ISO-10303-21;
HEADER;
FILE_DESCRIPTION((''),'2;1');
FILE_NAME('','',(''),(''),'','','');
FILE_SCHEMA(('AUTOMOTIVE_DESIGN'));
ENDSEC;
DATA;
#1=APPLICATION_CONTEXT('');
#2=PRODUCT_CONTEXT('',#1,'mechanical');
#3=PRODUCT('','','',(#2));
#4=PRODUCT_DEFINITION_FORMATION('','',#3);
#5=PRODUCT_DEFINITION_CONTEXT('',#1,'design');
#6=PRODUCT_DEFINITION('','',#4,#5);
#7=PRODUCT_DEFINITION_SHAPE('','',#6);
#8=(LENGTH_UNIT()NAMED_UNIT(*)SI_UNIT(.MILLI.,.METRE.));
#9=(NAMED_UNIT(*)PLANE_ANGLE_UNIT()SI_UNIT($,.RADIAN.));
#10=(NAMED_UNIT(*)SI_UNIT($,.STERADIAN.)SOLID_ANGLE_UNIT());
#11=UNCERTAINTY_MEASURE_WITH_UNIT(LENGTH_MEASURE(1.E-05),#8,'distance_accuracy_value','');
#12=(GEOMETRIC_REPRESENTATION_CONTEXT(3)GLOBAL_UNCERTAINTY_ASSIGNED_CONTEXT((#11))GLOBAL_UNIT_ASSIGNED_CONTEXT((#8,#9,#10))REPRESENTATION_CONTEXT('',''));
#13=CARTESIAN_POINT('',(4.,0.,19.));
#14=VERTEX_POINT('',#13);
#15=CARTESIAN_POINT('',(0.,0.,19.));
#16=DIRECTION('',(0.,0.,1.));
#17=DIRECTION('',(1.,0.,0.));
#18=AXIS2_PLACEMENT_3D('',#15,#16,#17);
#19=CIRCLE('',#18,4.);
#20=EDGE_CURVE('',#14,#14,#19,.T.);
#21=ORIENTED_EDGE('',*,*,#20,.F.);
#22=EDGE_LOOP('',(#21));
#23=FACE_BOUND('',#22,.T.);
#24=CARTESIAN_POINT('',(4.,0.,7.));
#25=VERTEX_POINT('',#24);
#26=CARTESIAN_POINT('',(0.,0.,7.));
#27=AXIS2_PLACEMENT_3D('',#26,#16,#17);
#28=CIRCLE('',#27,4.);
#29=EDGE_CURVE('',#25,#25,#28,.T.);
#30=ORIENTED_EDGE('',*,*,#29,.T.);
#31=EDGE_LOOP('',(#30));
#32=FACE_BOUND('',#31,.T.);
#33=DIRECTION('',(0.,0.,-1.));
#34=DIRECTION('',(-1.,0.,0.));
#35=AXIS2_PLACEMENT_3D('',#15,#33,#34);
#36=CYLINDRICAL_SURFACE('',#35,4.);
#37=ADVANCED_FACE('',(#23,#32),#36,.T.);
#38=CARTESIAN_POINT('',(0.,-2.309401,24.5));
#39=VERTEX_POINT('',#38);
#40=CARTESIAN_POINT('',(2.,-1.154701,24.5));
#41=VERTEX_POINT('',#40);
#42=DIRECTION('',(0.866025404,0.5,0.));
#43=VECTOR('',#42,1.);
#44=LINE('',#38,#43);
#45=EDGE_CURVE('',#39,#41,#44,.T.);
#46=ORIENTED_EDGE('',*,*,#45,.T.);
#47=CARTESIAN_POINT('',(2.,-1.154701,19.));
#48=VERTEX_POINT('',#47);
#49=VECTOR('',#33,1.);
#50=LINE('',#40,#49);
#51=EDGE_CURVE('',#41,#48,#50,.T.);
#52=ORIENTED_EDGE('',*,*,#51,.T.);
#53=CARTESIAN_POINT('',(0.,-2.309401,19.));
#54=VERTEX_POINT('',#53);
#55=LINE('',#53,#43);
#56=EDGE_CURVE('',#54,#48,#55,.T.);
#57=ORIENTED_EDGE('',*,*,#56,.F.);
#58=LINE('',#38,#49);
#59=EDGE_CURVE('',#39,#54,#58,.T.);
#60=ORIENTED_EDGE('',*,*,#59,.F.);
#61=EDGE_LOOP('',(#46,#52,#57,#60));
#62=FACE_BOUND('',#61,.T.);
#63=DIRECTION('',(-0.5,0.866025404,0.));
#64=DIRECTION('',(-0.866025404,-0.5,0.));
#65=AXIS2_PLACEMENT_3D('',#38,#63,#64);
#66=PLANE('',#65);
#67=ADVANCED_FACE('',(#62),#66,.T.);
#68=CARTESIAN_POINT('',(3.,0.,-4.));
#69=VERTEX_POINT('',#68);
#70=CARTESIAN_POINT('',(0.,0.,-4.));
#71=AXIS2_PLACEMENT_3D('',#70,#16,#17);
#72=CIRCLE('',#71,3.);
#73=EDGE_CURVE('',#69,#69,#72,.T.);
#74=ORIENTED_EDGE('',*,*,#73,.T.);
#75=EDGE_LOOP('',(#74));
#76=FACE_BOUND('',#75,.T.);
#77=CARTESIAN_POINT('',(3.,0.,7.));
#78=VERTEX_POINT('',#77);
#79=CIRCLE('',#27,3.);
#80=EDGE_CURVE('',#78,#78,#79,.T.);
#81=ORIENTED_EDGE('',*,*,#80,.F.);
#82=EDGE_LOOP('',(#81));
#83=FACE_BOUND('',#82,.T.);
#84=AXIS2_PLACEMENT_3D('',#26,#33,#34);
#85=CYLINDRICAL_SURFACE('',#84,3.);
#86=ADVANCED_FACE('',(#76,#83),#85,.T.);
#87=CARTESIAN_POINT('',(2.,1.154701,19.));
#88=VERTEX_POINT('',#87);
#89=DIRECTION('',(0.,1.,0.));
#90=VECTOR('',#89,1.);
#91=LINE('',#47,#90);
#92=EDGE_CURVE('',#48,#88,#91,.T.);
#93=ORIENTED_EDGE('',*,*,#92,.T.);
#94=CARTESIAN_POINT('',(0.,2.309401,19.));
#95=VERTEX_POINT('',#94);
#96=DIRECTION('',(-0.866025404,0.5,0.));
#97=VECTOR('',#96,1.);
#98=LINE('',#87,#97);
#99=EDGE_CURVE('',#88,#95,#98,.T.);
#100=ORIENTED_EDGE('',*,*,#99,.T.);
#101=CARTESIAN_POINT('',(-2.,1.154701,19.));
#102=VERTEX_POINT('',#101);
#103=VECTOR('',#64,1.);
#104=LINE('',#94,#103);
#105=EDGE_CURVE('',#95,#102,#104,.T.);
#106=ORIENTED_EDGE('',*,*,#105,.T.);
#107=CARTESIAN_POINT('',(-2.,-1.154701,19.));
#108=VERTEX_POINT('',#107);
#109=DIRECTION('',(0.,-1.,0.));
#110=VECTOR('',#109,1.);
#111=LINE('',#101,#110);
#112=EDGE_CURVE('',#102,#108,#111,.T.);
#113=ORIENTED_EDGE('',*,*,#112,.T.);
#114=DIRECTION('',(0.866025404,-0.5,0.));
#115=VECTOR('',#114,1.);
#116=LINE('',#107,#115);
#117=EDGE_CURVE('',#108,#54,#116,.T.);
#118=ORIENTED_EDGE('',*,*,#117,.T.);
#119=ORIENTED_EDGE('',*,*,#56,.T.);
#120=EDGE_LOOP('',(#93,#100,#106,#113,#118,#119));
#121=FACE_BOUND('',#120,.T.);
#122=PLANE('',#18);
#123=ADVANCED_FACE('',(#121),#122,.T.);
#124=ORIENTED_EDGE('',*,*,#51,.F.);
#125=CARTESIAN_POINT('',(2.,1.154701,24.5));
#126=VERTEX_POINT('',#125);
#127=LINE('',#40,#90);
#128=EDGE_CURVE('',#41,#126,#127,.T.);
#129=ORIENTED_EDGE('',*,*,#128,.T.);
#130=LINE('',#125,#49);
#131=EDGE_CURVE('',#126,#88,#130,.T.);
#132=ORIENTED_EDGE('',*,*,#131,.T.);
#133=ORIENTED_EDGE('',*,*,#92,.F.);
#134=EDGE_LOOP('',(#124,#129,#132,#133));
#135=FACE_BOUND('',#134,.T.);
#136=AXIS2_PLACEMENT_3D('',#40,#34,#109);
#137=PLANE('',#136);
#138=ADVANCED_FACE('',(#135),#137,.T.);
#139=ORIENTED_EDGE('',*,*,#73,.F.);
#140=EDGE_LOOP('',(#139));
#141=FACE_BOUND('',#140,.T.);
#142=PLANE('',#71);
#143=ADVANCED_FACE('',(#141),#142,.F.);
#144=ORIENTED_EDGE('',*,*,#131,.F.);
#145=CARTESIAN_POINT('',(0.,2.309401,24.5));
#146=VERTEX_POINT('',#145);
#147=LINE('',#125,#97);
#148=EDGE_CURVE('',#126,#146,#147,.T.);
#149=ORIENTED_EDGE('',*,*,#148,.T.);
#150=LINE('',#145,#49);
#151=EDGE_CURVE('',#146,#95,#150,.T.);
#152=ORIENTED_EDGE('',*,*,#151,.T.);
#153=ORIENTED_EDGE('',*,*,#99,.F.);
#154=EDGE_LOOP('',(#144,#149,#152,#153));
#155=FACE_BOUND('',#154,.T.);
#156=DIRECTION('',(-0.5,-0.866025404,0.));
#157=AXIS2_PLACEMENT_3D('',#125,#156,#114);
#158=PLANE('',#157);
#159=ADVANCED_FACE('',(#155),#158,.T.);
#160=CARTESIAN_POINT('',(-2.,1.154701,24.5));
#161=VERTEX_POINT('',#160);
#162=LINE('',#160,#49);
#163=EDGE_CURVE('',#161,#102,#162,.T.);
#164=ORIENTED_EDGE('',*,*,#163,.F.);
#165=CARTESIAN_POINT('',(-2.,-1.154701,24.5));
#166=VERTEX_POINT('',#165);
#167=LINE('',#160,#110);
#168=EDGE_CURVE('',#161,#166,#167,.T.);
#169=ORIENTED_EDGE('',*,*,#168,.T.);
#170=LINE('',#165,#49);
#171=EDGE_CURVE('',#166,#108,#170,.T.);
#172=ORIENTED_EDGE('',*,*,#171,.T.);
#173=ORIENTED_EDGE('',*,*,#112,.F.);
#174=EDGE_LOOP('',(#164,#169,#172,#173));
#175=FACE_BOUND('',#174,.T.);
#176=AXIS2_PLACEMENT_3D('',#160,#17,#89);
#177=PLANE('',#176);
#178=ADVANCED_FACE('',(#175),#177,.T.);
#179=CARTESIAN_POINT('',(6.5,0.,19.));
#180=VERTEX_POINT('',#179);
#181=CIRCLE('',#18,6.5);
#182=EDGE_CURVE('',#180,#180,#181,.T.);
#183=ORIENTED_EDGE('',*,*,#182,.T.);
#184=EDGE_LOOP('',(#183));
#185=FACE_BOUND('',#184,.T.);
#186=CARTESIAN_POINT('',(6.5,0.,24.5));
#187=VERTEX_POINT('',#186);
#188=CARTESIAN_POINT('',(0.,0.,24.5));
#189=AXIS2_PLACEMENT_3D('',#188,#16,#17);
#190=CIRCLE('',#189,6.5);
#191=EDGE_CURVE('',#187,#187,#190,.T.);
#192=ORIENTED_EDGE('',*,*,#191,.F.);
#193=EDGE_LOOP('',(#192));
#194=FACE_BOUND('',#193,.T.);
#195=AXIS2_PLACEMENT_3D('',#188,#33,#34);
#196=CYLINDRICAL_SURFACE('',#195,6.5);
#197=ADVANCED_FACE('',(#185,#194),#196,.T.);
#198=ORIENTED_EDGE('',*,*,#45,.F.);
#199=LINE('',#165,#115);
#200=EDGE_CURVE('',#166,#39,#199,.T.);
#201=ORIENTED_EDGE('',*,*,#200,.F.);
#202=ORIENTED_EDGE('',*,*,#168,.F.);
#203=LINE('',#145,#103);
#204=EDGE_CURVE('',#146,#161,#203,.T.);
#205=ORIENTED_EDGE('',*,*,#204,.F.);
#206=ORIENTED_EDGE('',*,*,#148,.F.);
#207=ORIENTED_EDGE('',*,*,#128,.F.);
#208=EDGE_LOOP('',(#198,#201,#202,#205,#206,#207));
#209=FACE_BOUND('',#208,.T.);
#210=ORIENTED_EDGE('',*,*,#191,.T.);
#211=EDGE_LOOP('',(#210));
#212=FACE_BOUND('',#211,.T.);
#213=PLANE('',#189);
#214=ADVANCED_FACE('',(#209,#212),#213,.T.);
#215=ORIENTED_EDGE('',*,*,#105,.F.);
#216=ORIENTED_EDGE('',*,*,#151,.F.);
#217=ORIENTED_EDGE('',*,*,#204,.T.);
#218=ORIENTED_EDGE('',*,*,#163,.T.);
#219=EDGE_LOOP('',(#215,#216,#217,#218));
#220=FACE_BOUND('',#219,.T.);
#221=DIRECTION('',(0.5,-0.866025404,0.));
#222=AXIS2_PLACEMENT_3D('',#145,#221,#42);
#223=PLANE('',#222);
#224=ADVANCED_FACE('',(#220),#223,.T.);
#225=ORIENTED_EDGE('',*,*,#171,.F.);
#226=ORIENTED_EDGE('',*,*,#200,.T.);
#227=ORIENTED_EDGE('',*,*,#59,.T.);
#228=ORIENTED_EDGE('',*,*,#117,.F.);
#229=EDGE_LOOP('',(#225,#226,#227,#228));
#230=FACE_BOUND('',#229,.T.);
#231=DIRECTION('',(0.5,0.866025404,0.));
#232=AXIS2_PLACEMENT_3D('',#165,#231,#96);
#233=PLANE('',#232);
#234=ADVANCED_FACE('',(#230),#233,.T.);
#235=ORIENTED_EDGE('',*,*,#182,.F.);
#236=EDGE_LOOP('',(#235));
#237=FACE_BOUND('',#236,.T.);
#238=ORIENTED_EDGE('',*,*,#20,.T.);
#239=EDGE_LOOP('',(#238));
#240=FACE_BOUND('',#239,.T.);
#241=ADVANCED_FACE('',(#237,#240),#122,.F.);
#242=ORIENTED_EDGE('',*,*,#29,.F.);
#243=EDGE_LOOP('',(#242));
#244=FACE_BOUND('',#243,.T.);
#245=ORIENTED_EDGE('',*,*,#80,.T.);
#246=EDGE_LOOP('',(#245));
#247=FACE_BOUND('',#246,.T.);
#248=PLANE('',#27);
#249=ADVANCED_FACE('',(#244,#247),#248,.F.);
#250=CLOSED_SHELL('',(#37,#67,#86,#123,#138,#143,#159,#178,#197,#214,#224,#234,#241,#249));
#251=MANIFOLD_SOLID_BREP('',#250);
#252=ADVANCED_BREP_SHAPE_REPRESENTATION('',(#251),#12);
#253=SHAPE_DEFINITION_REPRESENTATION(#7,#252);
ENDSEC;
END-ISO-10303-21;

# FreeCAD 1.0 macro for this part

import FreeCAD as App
import Part
import Sketcher
Q = App.Units.Quantity

doc = App.newDocument("Part")
body = doc.addObject("PartDesign::Body", "Body")

sketch1 = body.newObject("Sketcher::SketchObject", "Sketch")
sketch1.AttachmentSupport = (doc.getObject("XY_Plane"), [""])
sketch1.MapMode = "FlatFace"
sketch1.AttachmentOffset = App.Placement(App.Vector(0, 0, 7), App.Rotation())
sketch1.addGeometry(Part.Circle(App.Vector(0, 0, 0), App.Vector(0, 0, 1), 4), False)
sketch1.addConstraint([
    Sketcher.Constraint("Coincident", 0, 3, -1, 1),
    Sketcher.Constraint("Diameter", 0, 8.0),
])
pad1 = body.newObject("PartDesign::Pad", "Pad")
pad1.Profile = sketch1
pad1.Length = 12

sketch2 = body.newObject("Sketcher::SketchObject", "Sketch001")
sketch2.AttachmentSupport = (doc.getObject("XY_Plane"), [""])
sketch2.MapMode = "FlatFace"
sketch2.AttachmentOffset = App.Placement(App.Vector(0, 0, -4), App.Rotation())
sketch2.addGeometry(Part.Circle(App.Vector(0, 0, 0), App.Vector(0, 0, 1), 3), False)
sketch2.addConstraint([
    Sketcher.Constraint("Coincident", 0, 3, -1, 1),
    Sketcher.Constraint("Diameter", 0, 6.0),
])
pad2 = body.newObject("PartDesign::Pad", "Pad001")
pad2.Profile = sketch2
pad2.Length = 11

sketch3 = body.newObject("Sketcher::SketchObject", "Sketch002")
sketch3.AttachmentSupport = (doc.getObject("XY_Plane"), [""])
sketch3.MapMode = "FlatFace"
sketch3.AttachmentOffset = App.Placement(App.Vector(0, 0, 19), App.Rotation())
sketch3.addGeometry([
    Part.Circle(App.Vector(0, 0, 0), App.Vector(0, 0, 1), 6.5),
    Part.LineSegment(App.Vector(0, 2.3, 0), App.Vector(2, 1.2, 0)),
    Part.LineSegment(App.Vector(2, 1.2, 0), App.Vector(2, -1.2, 0)),
    Part.LineSegment(App.Vector(2, -1.2, 0), App.Vector(0, -2.3, 0)),
    Part.LineSegment(App.Vector(0, -2.3, 0), App.Vector(-2, -1.2, 0)),
    Part.LineSegment(App.Vector(-2, -1.2, 0), App.Vector(-2, 1.2, 0)),
    Part.LineSegment(App.Vector(-2, 1.2, 0), App.Vector(0, 2.3, 0)),
], False)
sketch3.addConstraint([
    Sketcher.Constraint("Coincident", 1, 2, 2, 1),
    Sketcher.Constraint("Coincident", 2, 2, 3, 1),
    Sketcher.Constraint("Coincident", 3, 2, 4, 1),
    Sketcher.Constraint("Coincident", 4, 2, 5, 1),
    Sketcher.Constraint("Coincident", 5, 2, 6, 1),
    Sketcher.Constraint("Coincident", 6, 2, 1, 1),
    Sketcher.Constraint("Vertical", 2),
    Sketcher.Constraint("Vertical", 5),
    Sketcher.Constraint("Coincident", 0, 3, -1, 1),
    Sketcher.Constraint("Symmetric", 1, 2, 4, 2, -1, 1),
    Sketcher.Constraint("Symmetric", 3, 2, 6, 2, -1, 1),
    Sketcher.Constraint("PointOnObject", 3, 2, -2),
    Sketcher.Constraint("Parallel", 3, 6),
    Sketcher.Constraint("Horizontal", 2, 2, 4, 2),
    Sketcher.Constraint("Diameter", 0, 13.0),
    Sketcher.Constraint("Angle", 1, Q("-30 deg")),
    Sketcher.Constraint("DistanceX", -1, 1, 1, 2, 2.0),
    Sketcher.Constraint("DistanceY", 2, 2, 2, 1, 2.309401),
])
pad3 = body.newObject("PartDesign::Pad", "Pad002")
pad3.Profile = sketch3
pad3.Length = 5.5

doc.recompute()
